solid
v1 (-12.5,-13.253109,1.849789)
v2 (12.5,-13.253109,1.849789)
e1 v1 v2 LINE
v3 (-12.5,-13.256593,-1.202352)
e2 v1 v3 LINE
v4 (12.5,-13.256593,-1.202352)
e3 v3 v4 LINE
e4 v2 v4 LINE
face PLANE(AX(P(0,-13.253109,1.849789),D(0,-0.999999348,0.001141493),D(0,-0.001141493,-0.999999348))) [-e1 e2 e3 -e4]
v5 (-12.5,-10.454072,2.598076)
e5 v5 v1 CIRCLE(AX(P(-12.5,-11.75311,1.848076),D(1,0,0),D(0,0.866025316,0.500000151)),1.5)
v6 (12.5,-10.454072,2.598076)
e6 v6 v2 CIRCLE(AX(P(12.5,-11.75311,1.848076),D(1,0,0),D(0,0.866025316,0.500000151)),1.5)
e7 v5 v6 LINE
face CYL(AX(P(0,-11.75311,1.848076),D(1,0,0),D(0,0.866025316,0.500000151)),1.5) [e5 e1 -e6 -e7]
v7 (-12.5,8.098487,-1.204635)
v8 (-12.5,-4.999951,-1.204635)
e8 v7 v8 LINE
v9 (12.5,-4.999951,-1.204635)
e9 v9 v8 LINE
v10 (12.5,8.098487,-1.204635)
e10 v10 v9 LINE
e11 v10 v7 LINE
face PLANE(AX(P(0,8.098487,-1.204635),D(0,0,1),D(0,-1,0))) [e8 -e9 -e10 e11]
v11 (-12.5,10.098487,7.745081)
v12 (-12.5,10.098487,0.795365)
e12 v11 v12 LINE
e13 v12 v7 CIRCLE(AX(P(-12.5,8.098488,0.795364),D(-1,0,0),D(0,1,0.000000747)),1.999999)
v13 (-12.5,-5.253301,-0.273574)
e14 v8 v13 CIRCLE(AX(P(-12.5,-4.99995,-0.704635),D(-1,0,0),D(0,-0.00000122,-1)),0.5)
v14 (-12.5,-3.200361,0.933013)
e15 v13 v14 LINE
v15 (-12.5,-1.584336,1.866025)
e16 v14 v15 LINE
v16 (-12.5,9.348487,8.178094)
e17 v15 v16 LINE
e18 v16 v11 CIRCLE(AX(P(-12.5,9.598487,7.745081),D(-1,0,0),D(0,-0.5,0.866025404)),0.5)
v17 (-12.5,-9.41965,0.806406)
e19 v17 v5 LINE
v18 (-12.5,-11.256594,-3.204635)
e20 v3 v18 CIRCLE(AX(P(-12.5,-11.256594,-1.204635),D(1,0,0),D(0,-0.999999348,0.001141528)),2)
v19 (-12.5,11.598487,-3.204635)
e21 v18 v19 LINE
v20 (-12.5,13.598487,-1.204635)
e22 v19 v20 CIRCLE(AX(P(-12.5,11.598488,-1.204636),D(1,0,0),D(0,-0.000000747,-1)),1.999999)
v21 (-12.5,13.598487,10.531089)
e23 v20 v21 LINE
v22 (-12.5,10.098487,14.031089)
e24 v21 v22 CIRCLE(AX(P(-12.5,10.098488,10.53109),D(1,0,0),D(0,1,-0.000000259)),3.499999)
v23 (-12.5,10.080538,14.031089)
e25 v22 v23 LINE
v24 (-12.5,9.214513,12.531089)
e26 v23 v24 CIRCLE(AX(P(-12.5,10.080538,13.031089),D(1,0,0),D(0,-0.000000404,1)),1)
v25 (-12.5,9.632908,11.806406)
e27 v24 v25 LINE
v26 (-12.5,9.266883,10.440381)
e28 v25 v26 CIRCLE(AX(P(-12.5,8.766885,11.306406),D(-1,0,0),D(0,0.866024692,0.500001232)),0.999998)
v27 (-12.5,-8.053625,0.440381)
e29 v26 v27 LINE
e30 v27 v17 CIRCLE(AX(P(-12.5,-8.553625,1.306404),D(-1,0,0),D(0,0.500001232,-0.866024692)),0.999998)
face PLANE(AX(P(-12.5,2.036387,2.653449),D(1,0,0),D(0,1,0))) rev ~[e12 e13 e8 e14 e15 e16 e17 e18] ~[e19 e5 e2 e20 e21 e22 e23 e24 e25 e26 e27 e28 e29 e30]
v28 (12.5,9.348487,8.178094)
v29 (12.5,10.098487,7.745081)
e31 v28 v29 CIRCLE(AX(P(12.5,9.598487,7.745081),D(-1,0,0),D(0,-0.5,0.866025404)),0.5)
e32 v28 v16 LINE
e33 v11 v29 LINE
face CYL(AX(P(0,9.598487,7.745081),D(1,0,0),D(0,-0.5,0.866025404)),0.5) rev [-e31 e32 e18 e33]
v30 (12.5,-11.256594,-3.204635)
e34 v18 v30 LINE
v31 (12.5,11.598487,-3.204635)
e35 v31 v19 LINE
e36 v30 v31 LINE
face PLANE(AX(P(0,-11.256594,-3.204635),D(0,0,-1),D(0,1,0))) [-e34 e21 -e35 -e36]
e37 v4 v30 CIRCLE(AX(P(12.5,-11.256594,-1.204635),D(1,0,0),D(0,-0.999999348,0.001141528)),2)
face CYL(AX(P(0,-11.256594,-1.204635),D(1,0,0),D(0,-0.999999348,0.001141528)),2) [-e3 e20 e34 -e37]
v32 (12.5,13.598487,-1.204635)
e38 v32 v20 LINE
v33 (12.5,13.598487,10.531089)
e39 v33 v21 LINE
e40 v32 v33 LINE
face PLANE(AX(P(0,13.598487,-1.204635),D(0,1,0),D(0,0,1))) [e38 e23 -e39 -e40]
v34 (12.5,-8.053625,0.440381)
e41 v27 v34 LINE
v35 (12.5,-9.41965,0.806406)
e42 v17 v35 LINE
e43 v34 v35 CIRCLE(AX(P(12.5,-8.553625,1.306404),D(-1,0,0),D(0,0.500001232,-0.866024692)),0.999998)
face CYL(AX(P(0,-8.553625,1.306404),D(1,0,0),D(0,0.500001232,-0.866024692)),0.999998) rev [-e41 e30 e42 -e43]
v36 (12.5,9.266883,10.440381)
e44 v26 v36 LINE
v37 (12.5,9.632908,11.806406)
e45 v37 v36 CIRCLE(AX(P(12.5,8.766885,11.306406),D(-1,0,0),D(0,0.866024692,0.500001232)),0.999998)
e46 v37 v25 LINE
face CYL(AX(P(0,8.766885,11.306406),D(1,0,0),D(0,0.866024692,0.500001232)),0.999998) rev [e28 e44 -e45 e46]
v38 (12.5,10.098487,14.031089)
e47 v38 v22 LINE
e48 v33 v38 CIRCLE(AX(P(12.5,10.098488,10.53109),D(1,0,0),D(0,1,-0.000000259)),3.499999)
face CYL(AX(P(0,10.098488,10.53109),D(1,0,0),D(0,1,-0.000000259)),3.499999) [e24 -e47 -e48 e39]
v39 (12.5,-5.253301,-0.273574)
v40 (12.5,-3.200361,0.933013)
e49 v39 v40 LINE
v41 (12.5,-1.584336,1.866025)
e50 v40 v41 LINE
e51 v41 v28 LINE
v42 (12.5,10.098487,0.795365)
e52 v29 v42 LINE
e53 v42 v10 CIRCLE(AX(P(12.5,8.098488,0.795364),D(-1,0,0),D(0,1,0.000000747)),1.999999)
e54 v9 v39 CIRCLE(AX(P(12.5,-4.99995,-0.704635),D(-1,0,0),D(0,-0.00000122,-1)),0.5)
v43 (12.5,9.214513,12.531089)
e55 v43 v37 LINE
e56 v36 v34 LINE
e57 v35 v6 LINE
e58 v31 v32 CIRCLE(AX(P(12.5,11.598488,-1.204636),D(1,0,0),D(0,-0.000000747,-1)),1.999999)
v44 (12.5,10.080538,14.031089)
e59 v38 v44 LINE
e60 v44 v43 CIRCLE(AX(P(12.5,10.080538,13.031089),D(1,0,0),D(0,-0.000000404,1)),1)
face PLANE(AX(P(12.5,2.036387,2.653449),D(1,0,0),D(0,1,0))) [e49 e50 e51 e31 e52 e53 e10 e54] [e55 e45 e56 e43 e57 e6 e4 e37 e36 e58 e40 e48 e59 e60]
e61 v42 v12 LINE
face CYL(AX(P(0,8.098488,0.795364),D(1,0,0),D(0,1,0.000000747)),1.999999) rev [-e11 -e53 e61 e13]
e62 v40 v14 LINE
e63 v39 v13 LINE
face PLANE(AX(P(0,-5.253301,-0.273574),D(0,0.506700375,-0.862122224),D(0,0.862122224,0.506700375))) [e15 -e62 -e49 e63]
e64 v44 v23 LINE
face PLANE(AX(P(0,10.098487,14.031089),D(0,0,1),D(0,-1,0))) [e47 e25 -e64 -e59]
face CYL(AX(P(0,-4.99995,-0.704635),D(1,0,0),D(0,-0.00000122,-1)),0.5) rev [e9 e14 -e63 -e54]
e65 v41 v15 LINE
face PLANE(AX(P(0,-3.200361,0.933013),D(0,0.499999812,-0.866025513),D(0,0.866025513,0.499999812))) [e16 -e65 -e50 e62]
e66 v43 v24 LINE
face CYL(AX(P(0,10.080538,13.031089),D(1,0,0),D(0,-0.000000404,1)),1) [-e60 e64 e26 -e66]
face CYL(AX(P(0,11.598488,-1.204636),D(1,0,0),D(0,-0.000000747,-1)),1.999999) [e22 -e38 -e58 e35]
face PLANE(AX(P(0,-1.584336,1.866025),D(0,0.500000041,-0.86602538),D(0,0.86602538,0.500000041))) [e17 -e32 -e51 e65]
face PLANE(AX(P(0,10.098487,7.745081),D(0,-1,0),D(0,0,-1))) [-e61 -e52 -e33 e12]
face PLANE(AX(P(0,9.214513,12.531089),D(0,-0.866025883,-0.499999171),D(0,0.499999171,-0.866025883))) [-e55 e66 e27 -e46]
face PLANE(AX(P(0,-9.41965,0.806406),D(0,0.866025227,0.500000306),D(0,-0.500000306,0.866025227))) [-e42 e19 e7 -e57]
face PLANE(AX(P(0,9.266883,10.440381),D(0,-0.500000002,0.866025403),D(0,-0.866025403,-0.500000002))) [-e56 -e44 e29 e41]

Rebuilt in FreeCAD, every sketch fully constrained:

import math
import FreeCAD as App
import Part
import Sketcher

V = App.Vector
Q = App.Units.Quantity

doc = App.newDocument("Part")
params = doc.addObject("Spreadsheet::Sheet", "Params")
for row, (alias, value) in enumerate([
    ("sketch1_radius", "0.999998 mm"),
    ("sketch1_radius2", "0.999998 mm"),
    ("sketch1_radius3", "2 mm"),
    ("sketch1_radius4", "1.999999 mm"),
    ("sketch1_radius5", "1 mm"),
    ("pad1_length", "12.5 mm"),
    ("pad1_length2", "12.5 mm"),
], start=1):
    params.set(f"A{row}", alias)
    params.set(f"B{row}", "=" + value)
    params.setAlias(f"B{row}", alias)

body = doc.addObject("PartDesign::Body", "Body")

# Sketch on YZ plane
sketch1 = body.newObject("Sketcher::SketchObject", "Sketch")
sketch1.AttachmentSupport = (doc.getObject("YZ_Plane"), [""])
sketch1.MapMode = "FlatFace"
sketch1.addGeometry(Part.ArcOfCircle(Part.Circle(V(8.766885, 11.306406, 0), V(0, 0, 1), 0.999998), math.radians(-60.000058), math.radians(30.000082)), False)
sketch1.addGeometry(Part.LineSegment(V(9.266883, 10.440381, 0), V(-8.053625, 0.440381, 0)), False)
sketch1.addGeometry(Part.ArcOfCircle(Part.Circle(V(-8.553625, 1.306404, 0), V(0, 0, 1), 0.999998), math.radians(-150.000058), math.radians(-59.999918)), False)
sketch1.addGeometry(Part.LineSegment(V(-9.41965, 0.806406, 0), V(-10.454072, 2.598076, 0)), False)
sketch1.addGeometry(Part.ArcOfCircle(Part.Circle(V(-11.75311, 1.848076, 0), V(0, 0, 1), 1.5), math.radians(30.00001), math.radians(179.934559)), False)
sketch1.addGeometry(Part.LineSegment(V(-13.253109, 1.849789, 0), V(-13.256593, -1.202352, 0)), False)
sketch1.addGeometry(Part.ArcOfCircle(Part.Circle(V(-11.256594, -1.204635, 0), V(0, 0, 1), 2), math.radians(179.934595), math.radians(270.00001)), False)
sketch1.addGeometry(Part.LineSegment(V(-11.256594, -3.204635, 0), V(11.598487, -3.204635, 0)), False)
sketch1.addGeometry(Part.ArcOfCircle(Part.Circle(V(11.598488, -1.204636, 0), V(0, 0, 1), 1.999999), math.radians(-90.000043), math.radians(0.000043)), False)
sketch1.addGeometry(Part.LineSegment(V(13.598487, -1.204635, 0), V(13.598487, 10.531089, 0)), False)
sketch1.addGeometry(Part.ArcOfCircle(Part.Circle(V(10.098488, 10.53109, 0), V(0, 0, 1), 3.499999), math.radians(-0.000015), math.radians(90.000015)), False)
sketch1.addGeometry(Part.LineSegment(V(10.098487, 14.031089, 0), V(10.080538, 14.031089, 0)), False)
sketch1.addGeometry(Part.ArcOfCircle(Part.Circle(V(10.080538, 13.031089, 0), V(0, 0, 1), 1), math.radians(90.000023), math.radians(210)), False)
sketch1.addGeometry(Part.LineSegment(V(9.214513, 12.531089, 0), V(9.632908, 11.806406, 0)), False)
sketch1.addGeometry(Part.ArcOfCircle(Part.Circle(V(9.598487, 7.745081, 0), V(0, 0, 1), 0.5), math.radians(-0.000034), math.radians(120)), False)
sketch1.addGeometry(Part.LineSegment(V(10.098487, 7.745081, 0), V(10.098487, 0.795365, 0)), False)
sketch1.addGeometry(Part.ArcOfCircle(Part.Circle(V(8.098488, 0.795364, 0), V(0, 0, 1), 1.999999), math.radians(-90.000043), math.radians(0.000043)), False)
sketch1.addGeometry(Part.LineSegment(V(8.098487, -1.204635, 0), V(-4.999951, -1.204635, 0)), False)
sketch1.addGeometry(Part.ArcOfCircle(Part.Circle(V(-4.99995, -0.704635, 0), V(0, 0, 1), 0.5), math.radians(120.444344), math.radians(269.99993)), False)
sketch1.addGeometry(Part.LineSegment(V(-5.253301, -0.273574, 0), V(-3.200361, 0.933013, 0)), False)
sketch1.addGeometry(Part.LineSegment(V(-3.200361, 0.933013, 0), V(-1.584336, 1.866025, 0)), False)
sketch1.addGeometry(Part.LineSegment(V(-1.584336, 1.866025, 0), V(9.348487, 8.178094, 0)), False)
sketch1.addConstraint(Sketcher.Constraint("Coincident", 0, 1, 1, 1))
sketch1.addConstraint(Sketcher.Constraint("Coincident", 1, 2, 2, 2))
sketch1.addConstraint(Sketcher.Constraint("Coincident", 2, 1, 3, 1))
sketch1.addConstraint(Sketcher.Constraint("Coincident", 3, 2, 4, 1))
sketch1.addConstraint(Sketcher.Constraint("Coincident", 4, 2, 5, 1))
sketch1.addConstraint(Sketcher.Constraint("Coincident", 5, 2, 6, 1))
sketch1.addConstraint(Sketcher.Constraint("Coincident", 6, 2, 7, 1))
sketch1.addConstraint(Sketcher.Constraint("Coincident", 7, 2, 8, 1))
sketch1.addConstraint(Sketcher.Constraint("Coincident", 8, 2, 9, 1))
sketch1.addConstraint(Sketcher.Constraint("Coincident", 9, 2, 10, 1))
sketch1.addConstraint(Sketcher.Constraint("Coincident", 10, 2, 11, 1))
sketch1.addConstraint(Sketcher.Constraint("Coincident", 11, 2, 12, 1))
sketch1.addConstraint(Sketcher.Constraint("Coincident", 12, 2, 13, 1))
sketch1.addConstraint(Sketcher.Constraint("Coincident", 13, 2, 0, 2))
sketch1.addConstraint(Sketcher.Constraint("Coincident", 14, 1, 15, 1))
sketch1.addConstraint(Sketcher.Constraint("Coincident", 15, 2, 16, 2))
sketch1.addConstraint(Sketcher.Constraint("Coincident", 16, 1, 17, 1))
sketch1.addConstraint(Sketcher.Constraint("Coincident", 17, 2, 18, 2))
sketch1.addConstraint(Sketcher.Constraint("Coincident", 18, 1, 19, 1))
sketch1.addConstraint(Sketcher.Constraint("Coincident", 19, 2, 20, 1))
sketch1.addConstraint(Sketcher.Constraint("Coincident", 20, 2, 21, 1))
sketch1.addConstraint(Sketcher.Constraint("Coincident", 21, 2, 14, 2))
sketch1.addConstraint(Sketcher.Constraint("Horizontal", 7))
sketch1.addConstraint(Sketcher.Constraint("Vertical", 9))
sketch1.addConstraint(Sketcher.Constraint("Horizontal", 11))
sketch1.addConstraint(Sketcher.Constraint("Vertical", 15))
sketch1.addConstraint(Sketcher.Constraint("Horizontal", 17))
sketch1.addConstraint(Sketcher.Constraint("Radius", 0, Q("0.999998 mm")))
sketch1.addConstraint(Sketcher.Constraint("Radius", 2, Q("0.999998 mm")))
sketch1.addConstraint(Sketcher.Constraint("Radius", 6, Q("2 mm")))
sketch1.addConstraint(Sketcher.Constraint("Radius", 8, Q("1.999999 mm")))
sketch1.addConstraint(Sketcher.Constraint("Radius", 12, Q("1 mm")))
sketch1.addConstraint(Sketcher.Constraint("Radius", 16, Q("1.999999 mm")))
sketch1.addConstraint(Sketcher.Constraint("Radius", 4, Q("1.5 mm")))
sketch1.addConstraint(Sketcher.Constraint("Radius", 10, Q("3.499999 mm")))
sketch1.addConstraint(Sketcher.Constraint("Radius", 14, Q("0.5 mm")))
sketch1.addConstraint(Sketcher.Constraint("Radius", 18, Q("0.5 mm")))
sketch1.addConstraint(Sketcher.Constraint("Distance", 1, Q("20 mm")))
sketch1.addConstraint(Sketcher.Constraint("DistanceY", 2, 3, 0, 3, Q("10.000001 mm")))
sketch1.addConstraint(Sketcher.Constraint("DistanceX", 14, 3, 8, 3, Q("2.000001 mm")))
sketch1.addConstraint(Sketcher.Constraint("DistanceY", 8, 3, 16, 3, Q("2 mm")))
sketch1.addConstraint(Sketcher.Constraint("DistanceX", 5, 2, 6, 2, Q("1.999999 mm")))
sketch1.addConstraint(Sketcher.Constraint("DistanceX", 14, 3, 7, 2, Q("2 mm")))
sketch1.addConstraint(Sketcher.Constraint("DistanceY", 7, 2, 8, 2, Q("2 mm")))
sketch1.addConstraint(Sketcher.Constraint("DistanceY", 8, 3, 15, 2, Q("2.000001 mm")))
sketch1.addConstraint(Sketcher.Constraint("DistanceX", 16, 1, 15, 2, Q("2 mm")))
sketch1.addConstraint(Sketcher.Constraint("DistanceX", 0, 3, 0, 1, Q("0.499998 mm")))
sketch1.addConstraint(Sketcher.Constraint("DistanceX", 2, 3, 1, 2, Q("0.5 mm")))
sketch1.addConstraint(Sketcher.Constraint("DistanceY", 2, 1, 2, 3, Q("0.499998 mm")))
sketch1.addConstraint(Sketcher.Constraint("DistanceY", 9, 2, 12, 3, Q("2.5 mm")))
sketch1.addConstraint(Sketcher.Constraint("DistanceX", 10, 2, 9, 2, Q("3.5 mm")))
sketch1.addConstraint(Sketcher.Constraint("DistanceY", 12, 2, 12, 3, Q("0.5 mm")))
sketch1.addConstraint(Sketcher.Constraint("DistanceY", 0, 3, 13, 2, Q("0.5 mm")))
sketch1.addConstraint(Sketcher.Constraint("DistanceY", 4, 3, 3, 2, Q("0.75 mm")))
sketch1.addConstraint(Sketcher.Constraint("DistanceX", 21, 2, 14, 3, Q("0.25 mm")))
sketch1.addConstraint(Sketcher.Constraint("DistanceX", 7, 1, 7, 2, Q("22.855081 mm")))
sketch1.addConstraint(Sketcher.Constraint("DistanceX", 11, 2, 11, 1, Q("0.017949 mm")))
sketch1.addConstraint(Sketcher.Constraint("DistanceX", 17, 2, 17, 1, Q("13.098438 mm")))
sketch1.addConstraint(Sketcher.Constraint("DistanceX", 18, 1, -1, 1, Q("5.253301 mm")))
sketch1.addConstraint(Sketcher.Constraint("DistanceX", 4, 3, 8, 3, Q("23.351598 mm")))
sketch1.addConstraint(Sketcher.Constraint("DistanceY", 14, 3, 0, 1, Q("2.6953 mm")))
sketch1.addConstraint(Sketcher.Constraint("DistanceX", 2, 1, 18, 3, Q("4.4197 mm")))
sketch1.addConstraint(Sketcher.Constraint("DistanceY", 14, 1, 0, 1, Q("2.6953 mm")))
sketch1.addConstraint(Sketcher.Constraint("DistanceX", 2, 1, 17, 2, Q("4.419699 mm")))
sketch1.addConstraint(Sketcher.Constraint("DistanceY", 18, 1, 20, 2, Q("2.139599 mm")))
sketch1.addConstraint(Sketcher.Constraint("Distance", 13, Q("0.836791 mm")))
sketch1.addConstraint(Sketcher.Constraint("DistanceY", 9, 1, 9, 2, Q("11.735724 mm")))
sketch1.addConstraint(Sketcher.Constraint("DistanceY", 15, 2, 15, 1, Q("6.949716 mm")))
sketch1.addConstraint(Sketcher.Constraint("DistanceX", 4, 3, -1, 1, Q("11.75311 mm")))
sketch1.addConstraint(Sketcher.Constraint("DistanceY", -1, 1, 10, 3, Q("10.53109 mm")))
sketch1.addConstraint(Sketcher.Constraint("DistanceY", -1, 1, 4, 2, Q("1.849789 mm")))
sketch1.addConstraint(Sketcher.Constraint("DistanceX", 19, 2, -1, 1, Q("3.200361 mm")))
sketch1.addConstraint(Sketcher.Constraint("DistanceY", 2, 3, 4, 3, Q("0.541671 mm")))
sketch1.addConstraint(Sketcher.Constraint("DistanceY", 5, 2, 4, 2, Q("3.052141 mm")))
sketch1.addConstraint(Sketcher.Constraint("DistanceY", 17, 2, 19, 2, Q("2.137648 mm")))
sketch1.addConstraint(Sketcher.Constraint("DistanceX", 1, 2, 20, 2, Q("6.469289 mm")))
sketch1.setExpression("Constraints[27]", "Params.sketch1_radius")
sketch1.setExpression("Constraints[28]", "Params.sketch1_radius2")
sketch1.setExpression("Constraints[29]", "Params.sketch1_radius3")
sketch1.setExpression("Constraints[30]", "Params.sketch1_radius4")
sketch1.setExpression("Constraints[31]", "Params.sketch1_radius5")
pad1 = body.newObject("PartDesign::Pad", "Pad")
pad1.Profile = sketch1
pad1.Type = "TwoLengths"
pad1.setExpression("Length", "Params.pad1_length")
pad1.setExpression("Length2", "Params.pad1_length2")

doc.recompute()
